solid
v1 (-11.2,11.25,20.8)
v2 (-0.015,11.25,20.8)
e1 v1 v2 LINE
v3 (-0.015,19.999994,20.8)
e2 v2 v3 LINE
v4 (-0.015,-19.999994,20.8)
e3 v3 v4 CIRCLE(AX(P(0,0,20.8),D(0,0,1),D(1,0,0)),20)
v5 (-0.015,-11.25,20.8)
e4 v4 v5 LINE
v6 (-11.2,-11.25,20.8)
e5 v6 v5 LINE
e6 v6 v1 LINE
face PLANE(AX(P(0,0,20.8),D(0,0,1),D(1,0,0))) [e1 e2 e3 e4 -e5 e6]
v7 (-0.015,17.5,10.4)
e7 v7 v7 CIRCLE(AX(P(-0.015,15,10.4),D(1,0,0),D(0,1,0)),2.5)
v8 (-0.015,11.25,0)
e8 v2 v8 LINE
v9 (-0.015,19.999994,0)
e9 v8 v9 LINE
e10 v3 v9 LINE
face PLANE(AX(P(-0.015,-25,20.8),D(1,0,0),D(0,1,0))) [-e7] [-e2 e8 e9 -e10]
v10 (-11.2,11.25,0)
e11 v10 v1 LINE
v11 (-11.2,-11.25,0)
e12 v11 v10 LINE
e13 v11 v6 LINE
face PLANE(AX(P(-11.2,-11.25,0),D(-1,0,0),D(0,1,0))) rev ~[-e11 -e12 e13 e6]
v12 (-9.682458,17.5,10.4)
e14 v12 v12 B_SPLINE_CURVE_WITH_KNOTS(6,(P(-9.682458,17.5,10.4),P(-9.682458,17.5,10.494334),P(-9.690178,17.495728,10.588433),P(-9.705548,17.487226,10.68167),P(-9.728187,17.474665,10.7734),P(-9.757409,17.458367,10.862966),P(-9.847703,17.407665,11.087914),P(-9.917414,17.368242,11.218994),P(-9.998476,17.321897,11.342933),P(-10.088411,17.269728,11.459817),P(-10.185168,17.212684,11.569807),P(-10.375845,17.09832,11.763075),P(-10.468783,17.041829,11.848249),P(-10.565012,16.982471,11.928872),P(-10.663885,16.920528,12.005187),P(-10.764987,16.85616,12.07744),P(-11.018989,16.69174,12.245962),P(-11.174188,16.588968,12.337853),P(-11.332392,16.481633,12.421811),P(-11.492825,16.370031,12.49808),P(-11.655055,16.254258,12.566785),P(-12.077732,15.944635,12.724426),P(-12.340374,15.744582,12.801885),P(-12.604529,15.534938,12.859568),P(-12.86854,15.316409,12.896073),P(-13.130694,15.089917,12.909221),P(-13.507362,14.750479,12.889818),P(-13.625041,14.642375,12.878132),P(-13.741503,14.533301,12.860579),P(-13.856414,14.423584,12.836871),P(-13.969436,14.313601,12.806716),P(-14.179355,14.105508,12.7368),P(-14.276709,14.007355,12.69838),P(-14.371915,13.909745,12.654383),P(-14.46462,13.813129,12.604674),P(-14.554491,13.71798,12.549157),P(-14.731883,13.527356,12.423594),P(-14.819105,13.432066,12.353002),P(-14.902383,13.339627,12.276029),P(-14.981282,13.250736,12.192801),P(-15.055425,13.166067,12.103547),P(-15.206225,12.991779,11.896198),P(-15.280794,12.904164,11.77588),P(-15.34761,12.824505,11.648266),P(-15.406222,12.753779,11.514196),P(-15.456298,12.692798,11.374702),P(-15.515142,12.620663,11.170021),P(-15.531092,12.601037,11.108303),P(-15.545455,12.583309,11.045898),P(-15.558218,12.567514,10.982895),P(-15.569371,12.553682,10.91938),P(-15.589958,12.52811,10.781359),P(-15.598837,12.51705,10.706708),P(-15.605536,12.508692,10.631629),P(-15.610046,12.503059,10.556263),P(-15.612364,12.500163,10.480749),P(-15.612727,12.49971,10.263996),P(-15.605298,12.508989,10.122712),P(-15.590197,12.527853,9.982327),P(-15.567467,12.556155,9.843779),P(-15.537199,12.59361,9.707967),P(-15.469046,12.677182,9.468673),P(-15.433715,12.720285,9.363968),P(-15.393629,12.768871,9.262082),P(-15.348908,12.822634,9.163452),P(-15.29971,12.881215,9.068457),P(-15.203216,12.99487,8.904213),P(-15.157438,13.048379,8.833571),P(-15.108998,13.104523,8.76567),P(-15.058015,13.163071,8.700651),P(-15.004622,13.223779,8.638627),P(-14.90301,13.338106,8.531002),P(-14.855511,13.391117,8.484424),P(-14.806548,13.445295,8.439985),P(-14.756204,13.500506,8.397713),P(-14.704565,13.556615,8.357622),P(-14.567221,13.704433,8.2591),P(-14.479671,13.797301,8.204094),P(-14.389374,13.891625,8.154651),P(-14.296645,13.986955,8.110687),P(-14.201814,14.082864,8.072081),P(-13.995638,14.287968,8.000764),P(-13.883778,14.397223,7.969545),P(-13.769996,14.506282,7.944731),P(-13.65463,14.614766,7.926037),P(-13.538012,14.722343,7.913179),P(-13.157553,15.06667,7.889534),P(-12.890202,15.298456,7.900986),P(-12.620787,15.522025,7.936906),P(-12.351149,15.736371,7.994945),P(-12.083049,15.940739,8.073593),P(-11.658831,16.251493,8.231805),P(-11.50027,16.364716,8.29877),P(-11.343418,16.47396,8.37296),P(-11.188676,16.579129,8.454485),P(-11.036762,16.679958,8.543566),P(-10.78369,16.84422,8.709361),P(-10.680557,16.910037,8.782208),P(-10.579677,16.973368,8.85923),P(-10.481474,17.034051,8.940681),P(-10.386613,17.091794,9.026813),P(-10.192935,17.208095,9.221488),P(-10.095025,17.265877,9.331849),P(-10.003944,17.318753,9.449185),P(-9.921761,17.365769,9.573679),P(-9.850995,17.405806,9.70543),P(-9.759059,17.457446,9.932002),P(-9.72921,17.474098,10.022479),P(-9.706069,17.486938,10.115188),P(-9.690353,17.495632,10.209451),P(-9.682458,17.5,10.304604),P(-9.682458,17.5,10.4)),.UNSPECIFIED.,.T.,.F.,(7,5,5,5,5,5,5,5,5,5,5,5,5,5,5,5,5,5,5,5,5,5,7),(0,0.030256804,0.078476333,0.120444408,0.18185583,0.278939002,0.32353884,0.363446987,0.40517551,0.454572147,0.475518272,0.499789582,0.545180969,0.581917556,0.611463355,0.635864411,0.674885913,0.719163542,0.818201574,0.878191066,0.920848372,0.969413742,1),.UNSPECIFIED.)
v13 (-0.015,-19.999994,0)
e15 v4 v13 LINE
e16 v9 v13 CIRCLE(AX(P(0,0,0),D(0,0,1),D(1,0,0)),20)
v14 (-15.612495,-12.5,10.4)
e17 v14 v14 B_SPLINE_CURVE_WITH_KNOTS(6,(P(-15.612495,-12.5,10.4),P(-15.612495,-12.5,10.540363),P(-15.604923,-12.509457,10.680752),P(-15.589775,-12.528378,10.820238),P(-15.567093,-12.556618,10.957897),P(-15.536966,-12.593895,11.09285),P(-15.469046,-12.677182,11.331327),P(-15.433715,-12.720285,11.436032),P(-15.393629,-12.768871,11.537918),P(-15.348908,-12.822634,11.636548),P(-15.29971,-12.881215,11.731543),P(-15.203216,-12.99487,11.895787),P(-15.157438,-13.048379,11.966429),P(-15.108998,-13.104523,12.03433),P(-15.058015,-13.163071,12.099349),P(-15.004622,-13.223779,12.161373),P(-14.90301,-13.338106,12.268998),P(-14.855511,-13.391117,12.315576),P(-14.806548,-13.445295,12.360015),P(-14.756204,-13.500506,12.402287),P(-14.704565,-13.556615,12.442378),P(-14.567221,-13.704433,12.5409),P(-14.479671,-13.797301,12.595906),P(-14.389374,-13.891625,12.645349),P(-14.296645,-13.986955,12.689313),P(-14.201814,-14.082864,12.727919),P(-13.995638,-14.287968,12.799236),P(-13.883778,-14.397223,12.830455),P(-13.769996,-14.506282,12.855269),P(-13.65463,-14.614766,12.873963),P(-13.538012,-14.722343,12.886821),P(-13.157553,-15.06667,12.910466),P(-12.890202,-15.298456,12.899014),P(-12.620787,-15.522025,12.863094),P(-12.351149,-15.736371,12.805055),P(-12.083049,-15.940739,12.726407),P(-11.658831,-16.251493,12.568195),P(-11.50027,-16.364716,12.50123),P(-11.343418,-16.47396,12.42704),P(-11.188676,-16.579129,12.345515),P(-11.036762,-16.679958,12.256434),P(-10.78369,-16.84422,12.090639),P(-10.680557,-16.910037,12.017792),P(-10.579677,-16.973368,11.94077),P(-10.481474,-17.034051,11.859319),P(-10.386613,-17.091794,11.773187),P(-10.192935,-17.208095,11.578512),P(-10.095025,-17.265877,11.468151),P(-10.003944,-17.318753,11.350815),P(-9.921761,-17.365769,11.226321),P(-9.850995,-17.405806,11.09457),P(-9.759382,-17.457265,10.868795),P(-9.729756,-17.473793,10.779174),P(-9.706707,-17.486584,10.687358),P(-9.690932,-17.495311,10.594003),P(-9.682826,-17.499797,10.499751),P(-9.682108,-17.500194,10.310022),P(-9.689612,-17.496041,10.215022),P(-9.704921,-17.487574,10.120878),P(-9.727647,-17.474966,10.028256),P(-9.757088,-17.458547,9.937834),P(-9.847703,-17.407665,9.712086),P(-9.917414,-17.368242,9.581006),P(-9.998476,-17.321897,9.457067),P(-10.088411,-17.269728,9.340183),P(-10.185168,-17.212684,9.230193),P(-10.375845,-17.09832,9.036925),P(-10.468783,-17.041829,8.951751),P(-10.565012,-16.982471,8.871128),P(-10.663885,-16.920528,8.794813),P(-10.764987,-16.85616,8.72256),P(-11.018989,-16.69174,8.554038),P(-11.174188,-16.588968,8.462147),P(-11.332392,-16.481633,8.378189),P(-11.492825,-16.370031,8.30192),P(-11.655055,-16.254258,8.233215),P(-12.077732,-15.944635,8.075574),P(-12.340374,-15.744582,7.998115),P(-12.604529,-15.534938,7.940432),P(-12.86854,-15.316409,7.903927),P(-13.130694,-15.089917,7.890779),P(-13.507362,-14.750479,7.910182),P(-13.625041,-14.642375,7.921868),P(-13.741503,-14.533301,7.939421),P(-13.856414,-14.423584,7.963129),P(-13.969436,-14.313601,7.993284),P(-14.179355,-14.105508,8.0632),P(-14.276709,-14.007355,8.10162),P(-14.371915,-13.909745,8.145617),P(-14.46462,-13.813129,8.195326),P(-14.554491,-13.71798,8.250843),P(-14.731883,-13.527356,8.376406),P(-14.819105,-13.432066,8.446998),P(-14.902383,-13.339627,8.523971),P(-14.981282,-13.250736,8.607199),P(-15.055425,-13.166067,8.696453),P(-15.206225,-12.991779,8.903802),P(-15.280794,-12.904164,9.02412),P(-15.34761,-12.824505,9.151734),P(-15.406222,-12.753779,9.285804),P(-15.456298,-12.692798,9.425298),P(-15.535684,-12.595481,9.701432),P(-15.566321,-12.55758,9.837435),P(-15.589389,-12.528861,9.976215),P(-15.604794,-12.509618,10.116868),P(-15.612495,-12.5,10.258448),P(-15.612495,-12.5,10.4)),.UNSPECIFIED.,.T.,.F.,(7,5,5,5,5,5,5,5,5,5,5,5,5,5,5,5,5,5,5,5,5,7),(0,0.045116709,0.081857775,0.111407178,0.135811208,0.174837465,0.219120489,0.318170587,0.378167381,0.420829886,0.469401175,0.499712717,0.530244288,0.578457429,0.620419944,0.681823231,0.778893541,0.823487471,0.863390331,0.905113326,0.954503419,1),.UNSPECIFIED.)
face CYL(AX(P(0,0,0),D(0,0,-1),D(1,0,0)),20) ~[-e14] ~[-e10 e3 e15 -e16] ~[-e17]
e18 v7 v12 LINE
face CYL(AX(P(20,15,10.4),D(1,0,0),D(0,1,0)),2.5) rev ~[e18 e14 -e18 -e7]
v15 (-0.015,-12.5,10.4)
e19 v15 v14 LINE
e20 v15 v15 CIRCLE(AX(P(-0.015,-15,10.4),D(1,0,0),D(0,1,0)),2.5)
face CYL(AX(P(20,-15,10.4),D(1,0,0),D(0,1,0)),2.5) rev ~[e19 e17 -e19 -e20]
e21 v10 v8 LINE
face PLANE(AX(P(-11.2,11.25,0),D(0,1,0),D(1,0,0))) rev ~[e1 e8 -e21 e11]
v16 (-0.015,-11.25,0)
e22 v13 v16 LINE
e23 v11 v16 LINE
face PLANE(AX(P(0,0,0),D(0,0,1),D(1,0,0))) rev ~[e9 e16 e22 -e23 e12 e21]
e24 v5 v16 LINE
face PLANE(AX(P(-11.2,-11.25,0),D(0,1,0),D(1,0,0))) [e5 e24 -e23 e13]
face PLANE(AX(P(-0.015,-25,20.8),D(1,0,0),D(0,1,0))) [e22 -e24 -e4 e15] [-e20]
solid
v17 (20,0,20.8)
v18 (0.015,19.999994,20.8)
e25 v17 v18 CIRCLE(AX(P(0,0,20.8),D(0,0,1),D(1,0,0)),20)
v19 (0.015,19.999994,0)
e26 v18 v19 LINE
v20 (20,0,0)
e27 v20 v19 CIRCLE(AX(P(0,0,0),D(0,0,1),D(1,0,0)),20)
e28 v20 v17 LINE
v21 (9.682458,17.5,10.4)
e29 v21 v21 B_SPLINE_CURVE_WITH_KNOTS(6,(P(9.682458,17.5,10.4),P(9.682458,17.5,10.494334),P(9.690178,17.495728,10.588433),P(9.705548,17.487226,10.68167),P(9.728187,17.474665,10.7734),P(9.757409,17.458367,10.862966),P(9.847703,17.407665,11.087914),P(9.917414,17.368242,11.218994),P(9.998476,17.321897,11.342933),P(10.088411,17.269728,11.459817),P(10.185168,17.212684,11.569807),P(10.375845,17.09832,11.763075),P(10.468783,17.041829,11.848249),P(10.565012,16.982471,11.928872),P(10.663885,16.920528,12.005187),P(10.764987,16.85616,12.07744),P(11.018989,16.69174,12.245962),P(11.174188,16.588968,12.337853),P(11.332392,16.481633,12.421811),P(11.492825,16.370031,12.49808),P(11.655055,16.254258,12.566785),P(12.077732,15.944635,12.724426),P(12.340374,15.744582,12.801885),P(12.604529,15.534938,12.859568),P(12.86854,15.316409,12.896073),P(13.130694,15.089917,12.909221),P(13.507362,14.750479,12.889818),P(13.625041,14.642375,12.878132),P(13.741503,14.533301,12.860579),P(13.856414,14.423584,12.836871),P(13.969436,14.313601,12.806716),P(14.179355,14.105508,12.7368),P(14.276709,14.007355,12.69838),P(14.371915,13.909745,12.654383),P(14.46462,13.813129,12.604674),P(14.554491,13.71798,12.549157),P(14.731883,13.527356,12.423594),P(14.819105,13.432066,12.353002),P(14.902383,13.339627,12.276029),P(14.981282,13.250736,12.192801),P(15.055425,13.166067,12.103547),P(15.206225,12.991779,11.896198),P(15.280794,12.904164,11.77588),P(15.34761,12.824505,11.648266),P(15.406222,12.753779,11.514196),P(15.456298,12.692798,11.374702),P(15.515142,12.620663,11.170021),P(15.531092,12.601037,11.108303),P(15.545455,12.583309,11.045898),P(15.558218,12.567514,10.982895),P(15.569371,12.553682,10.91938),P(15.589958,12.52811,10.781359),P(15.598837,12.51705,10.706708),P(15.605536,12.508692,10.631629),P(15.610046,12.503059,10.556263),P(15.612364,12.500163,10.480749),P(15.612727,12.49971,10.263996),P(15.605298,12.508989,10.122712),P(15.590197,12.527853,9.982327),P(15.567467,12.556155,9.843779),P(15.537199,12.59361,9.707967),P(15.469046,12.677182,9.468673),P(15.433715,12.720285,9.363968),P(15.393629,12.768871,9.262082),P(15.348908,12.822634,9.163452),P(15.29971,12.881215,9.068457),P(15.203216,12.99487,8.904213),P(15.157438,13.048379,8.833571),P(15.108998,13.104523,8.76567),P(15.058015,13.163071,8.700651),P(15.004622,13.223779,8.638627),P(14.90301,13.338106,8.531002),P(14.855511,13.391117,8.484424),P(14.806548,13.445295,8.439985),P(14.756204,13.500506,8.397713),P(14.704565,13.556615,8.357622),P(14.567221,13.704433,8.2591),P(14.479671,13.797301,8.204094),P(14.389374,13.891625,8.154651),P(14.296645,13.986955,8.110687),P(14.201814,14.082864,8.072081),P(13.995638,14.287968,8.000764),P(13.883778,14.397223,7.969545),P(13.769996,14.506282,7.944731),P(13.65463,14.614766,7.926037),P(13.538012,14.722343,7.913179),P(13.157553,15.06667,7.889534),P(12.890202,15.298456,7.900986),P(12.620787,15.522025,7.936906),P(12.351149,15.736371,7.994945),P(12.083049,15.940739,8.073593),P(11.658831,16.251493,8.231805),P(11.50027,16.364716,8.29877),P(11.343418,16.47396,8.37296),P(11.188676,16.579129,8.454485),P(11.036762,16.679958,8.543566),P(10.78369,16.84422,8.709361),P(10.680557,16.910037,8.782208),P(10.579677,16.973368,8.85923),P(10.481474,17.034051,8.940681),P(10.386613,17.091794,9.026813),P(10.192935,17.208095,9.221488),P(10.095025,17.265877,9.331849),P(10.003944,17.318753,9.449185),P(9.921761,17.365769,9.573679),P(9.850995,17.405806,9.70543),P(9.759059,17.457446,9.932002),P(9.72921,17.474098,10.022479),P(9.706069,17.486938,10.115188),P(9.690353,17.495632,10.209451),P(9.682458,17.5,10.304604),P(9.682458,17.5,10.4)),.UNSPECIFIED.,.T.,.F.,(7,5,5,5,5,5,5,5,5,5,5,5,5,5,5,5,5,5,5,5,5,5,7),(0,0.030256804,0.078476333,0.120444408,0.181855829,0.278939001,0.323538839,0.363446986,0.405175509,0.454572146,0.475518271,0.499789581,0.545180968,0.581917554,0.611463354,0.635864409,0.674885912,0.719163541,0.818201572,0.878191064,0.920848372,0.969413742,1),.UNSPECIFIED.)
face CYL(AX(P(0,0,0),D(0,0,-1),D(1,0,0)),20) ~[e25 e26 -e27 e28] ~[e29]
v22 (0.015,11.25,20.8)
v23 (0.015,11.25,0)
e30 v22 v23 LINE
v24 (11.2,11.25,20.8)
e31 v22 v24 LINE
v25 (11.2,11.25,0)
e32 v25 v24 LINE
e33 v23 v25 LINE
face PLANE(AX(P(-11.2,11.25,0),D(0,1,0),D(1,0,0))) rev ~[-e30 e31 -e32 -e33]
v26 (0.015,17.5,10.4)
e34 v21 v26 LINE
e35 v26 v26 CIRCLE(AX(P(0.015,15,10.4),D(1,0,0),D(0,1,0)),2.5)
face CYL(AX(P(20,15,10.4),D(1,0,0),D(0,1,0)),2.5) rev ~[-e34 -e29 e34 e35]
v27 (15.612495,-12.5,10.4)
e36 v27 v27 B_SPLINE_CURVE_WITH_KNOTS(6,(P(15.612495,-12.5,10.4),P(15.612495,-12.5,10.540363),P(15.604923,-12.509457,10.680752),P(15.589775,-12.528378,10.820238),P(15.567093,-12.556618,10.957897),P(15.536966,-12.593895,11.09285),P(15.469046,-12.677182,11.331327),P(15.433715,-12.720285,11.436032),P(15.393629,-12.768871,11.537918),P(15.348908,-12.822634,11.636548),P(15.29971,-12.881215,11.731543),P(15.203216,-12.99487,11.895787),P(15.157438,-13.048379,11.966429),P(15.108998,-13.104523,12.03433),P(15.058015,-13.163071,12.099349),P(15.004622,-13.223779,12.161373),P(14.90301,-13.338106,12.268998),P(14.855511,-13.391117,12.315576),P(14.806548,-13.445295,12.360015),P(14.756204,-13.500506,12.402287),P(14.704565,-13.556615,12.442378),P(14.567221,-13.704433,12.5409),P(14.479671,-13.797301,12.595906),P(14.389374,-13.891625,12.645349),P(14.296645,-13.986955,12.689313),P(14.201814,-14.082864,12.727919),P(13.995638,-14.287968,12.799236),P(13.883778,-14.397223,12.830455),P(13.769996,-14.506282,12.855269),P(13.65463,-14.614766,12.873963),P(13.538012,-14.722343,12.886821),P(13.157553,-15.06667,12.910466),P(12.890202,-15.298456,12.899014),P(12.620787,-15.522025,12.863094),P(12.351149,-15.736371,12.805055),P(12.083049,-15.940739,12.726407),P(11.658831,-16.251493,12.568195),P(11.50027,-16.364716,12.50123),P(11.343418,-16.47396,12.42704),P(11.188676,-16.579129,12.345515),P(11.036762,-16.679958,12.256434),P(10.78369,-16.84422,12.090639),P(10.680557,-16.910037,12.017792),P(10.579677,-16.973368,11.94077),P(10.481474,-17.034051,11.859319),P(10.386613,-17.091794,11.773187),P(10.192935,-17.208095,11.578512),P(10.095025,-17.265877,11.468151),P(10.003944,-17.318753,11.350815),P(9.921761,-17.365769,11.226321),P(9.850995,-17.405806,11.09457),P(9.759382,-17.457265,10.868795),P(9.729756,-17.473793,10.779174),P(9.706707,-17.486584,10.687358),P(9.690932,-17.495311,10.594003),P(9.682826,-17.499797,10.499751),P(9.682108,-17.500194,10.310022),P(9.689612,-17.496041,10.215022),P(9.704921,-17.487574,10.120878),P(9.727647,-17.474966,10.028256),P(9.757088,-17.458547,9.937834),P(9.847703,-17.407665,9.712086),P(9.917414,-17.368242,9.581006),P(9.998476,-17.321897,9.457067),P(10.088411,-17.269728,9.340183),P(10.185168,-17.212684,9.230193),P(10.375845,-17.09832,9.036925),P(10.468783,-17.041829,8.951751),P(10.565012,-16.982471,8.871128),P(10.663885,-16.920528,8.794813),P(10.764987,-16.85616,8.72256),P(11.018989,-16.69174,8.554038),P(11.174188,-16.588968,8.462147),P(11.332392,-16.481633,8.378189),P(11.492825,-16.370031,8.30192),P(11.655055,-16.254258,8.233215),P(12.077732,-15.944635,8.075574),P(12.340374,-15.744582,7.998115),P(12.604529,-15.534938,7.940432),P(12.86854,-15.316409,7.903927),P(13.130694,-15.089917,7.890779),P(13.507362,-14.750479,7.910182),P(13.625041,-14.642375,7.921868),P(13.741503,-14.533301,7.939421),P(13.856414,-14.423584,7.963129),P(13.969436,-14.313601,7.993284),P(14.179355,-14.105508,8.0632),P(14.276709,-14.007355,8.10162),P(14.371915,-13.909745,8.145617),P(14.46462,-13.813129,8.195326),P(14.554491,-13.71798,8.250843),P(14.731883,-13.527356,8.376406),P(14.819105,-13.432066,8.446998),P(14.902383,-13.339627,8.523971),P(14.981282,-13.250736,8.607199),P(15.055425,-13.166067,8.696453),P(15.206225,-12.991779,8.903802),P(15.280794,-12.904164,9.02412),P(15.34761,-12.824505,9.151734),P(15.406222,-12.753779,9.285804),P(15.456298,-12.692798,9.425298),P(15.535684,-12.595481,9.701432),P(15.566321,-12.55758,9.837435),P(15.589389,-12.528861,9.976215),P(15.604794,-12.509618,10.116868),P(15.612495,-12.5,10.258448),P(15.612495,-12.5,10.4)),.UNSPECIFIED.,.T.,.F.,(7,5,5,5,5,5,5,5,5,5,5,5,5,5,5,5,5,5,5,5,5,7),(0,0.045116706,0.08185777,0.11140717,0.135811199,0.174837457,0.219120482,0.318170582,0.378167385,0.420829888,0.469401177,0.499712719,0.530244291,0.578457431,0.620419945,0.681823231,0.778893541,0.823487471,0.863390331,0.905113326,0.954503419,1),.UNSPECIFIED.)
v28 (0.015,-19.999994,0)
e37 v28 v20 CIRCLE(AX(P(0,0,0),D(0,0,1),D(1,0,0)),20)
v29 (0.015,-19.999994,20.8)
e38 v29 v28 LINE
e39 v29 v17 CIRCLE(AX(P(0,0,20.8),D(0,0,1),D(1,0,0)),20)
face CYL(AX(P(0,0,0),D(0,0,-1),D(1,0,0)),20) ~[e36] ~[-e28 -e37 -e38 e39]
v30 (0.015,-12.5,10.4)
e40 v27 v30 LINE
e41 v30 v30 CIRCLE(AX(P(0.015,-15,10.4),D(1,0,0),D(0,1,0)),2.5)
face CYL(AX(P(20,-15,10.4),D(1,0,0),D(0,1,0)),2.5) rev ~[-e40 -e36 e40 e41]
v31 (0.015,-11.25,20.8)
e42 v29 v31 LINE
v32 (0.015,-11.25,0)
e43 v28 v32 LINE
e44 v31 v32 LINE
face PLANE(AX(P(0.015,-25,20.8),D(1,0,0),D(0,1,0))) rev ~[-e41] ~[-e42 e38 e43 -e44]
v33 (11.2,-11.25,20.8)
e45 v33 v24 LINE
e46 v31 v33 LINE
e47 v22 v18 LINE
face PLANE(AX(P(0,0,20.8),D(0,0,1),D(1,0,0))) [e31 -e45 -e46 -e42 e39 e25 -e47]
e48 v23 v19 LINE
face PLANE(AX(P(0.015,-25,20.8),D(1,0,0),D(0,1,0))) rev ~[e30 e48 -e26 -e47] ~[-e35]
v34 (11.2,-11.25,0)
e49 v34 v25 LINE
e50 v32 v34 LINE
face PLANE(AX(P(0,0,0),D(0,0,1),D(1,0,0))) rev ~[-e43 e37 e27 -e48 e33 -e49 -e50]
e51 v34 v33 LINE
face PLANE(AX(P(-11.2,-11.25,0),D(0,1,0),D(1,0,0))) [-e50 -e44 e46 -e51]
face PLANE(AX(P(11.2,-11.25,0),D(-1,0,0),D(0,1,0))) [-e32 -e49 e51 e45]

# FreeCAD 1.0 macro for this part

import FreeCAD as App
import Part
import Sketcher

doc = App.newDocument("Part")
params = doc.addObject("Spreadsheet::Sheet", "Params")
for row, (alias, value) in enumerate([
    ("sketch1_diameter", "40 mm"),
    ("sketch1_width", "22.4 mm"),
    ("sketch1_height", "22.5 mm"),
    ("pad1_length", "20.8 mm"),
    ("sketch2_diameter", "5 mm"),
    ("sketch3_height", "50 mm"),
    ("sketch3_width", "0.03 mm"),
], start=1):
    params.set(f"A{row}", alias)
    params.set(f"B{row}", "=" + value)
    params.setAlias(f"B{row}", alias)

body = doc.addObject("PartDesign::Body", "Body")
body.AllowCompound = True

sketch1 = doc.addObject("Sketcher::SketchObject", "Sketch")
body.addObject(sketch1)
sketch1.AttachmentSupport = (doc.XY_Plane, [""])
sketch1.MapMode = "FlatFace"
sketch1.addGeometry([
    Part.Circle(App.Vector(0, 0, 0), App.Vector(0, 0, 1), 20),
    Part.LineSegment(App.Vector(11, -11, 0), App.Vector(-11, -11, 0)),
    Part.LineSegment(App.Vector(-11, -11, 0), App.Vector(-11, 11, 0)),
    Part.LineSegment(App.Vector(-11, 11, 0), App.Vector(11, 11, 0)),
    Part.LineSegment(App.Vector(11, 11, 0), App.Vector(11, -11, 0)),
], False)
sketch1.addConstraint([
    Sketcher.Constraint("Coincident", 1, 2, 2, 1),
    Sketcher.Constraint("Coincident", 2, 2, 3, 1),
    Sketcher.Constraint("Coincident", 3, 2, 4, 1),
    Sketcher.Constraint("Coincident", 4, 2, 1, 1),
    Sketcher.Constraint("Horizontal", 1),
    Sketcher.Constraint("Vertical", 2),
    Sketcher.Constraint("Horizontal", 3),
    Sketcher.Constraint("Vertical", 4),
    Sketcher.Constraint("Coincident", 0, 3, -1, 1),
    Sketcher.Constraint("Symmetric", 1, 2, 3, 2, -1, 1),
    Sketcher.Constraint("Diameter", 0, 40.0),
    Sketcher.Constraint("DistanceX", 1, 2, 1, 1, 22.4),
    Sketcher.Constraint("DistanceY", 2, 1, 2, 2, 22.5),
])
sketch1.setExpression("Constraints[10]", "Params.sketch1_diameter")
sketch1.setExpression("Constraints[11]", "Params.sketch1_width")
sketch1.setExpression("Constraints[12]", "Params.sketch1_height")
pad1 = doc.addObject("PartDesign::Pad", "Pad")
body.addObject(pad1)
pad1.Profile = sketch1
pad1.setExpression("Length", "Params.pad1_length")

sketch2 = doc.addObject("Sketcher::SketchObject", "Sketch001")
body.addObject(sketch2)
sketch2.AttachmentSupport = (doc.YZ_Plane, [""])
sketch2.MapMode = "FlatFace"
sketch2.AttachmentOffset = App.Placement(App.Vector(0, 0, 20), App.Rotation())
sketch2.addGeometry([
    Part.Circle(App.Vector(-15, 10.4, 0), App.Vector(0, 0, 1), 2.5),
    Part.Circle(App.Vector(15, 10.4, 0), App.Vector(0, 0, 1), 2.5),
], False)
sketch2.addConstraint([
    Sketcher.Constraint("Equal", 0, 1),
    Sketcher.Constraint("Symmetric", 0, 3, 1, 3, -2),
    Sketcher.Constraint("Diameter", 0, 5.0),
    Sketcher.Constraint("DistanceX", 0, 3, -1, 1, 15.0),
    Sketcher.Constraint("DistanceY", -1, 1, 0, 3, 10.4),
])
sketch2.setExpression("Constraints[2]", "Params.sketch2_diameter")
pocket1 = doc.addObject("PartDesign::Pocket", "Pocket")
body.addObject(pocket1)
pocket1.Profile = sketch2
pocket1.Type = "ThroughAll"

sketch3 = doc.addObject("Sketcher::SketchObject", "Sketch002")
body.addObject(sketch3)
sketch3.AttachmentSupport = (doc.XY_Plane, [""])
sketch3.MapMode = "FlatFace"
sketch3.AttachmentOffset = App.Placement(App.Vector(0, 0, 20.8), App.Rotation())
sketch3.addGeometry([
    Part.LineSegment(App.Vector(-0.015, 25, 0), App.Vector(-0.015, -25, 0)),
    Part.LineSegment(App.Vector(-0.015, -25, 0), App.Vector(0.015, -25, 0)),
    Part.LineSegment(App.Vector(0.015, -25, 0), App.Vector(0.015, 25, 0)),
    Part.LineSegment(App.Vector(0.015, 25, 0), App.Vector(-0.015, 25, 0)),
], False)
sketch3.addConstraint([
    Sketcher.Constraint("Coincident", 0, 2, 1, 1),
    Sketcher.Constraint("Coincident", 1, 2, 2, 1),
    Sketcher.Constraint("Coincident", 2, 2, 3, 1),
    Sketcher.Constraint("Coincident", 3, 2, 0, 1),
    Sketcher.Constraint("Vertical", 0),
    Sketcher.Constraint("Horizontal", 1),
    Sketcher.Constraint("Vertical", 2),
    Sketcher.Constraint("Horizontal", 3),
    Sketcher.Constraint("Symmetric", 0, 2, 2, 2, -1, 1),
    Sketcher.Constraint("DistanceY", 0, 2, 0, 1, 50.0),
    Sketcher.Constraint("DistanceX", 1, 1, 1, 2, 0.03),
])
sketch3.setExpression("Constraints[9]", "Params.sketch3_height")
sketch3.setExpression("Constraints[10]", "Params.sketch3_width")
pocket2 = doc.addObject("PartDesign::Pocket", "Pocket001")
body.addObject(pocket2)
pocket2.Profile = sketch3
pocket2.Type = "ThroughAll"

doc.recompute()
